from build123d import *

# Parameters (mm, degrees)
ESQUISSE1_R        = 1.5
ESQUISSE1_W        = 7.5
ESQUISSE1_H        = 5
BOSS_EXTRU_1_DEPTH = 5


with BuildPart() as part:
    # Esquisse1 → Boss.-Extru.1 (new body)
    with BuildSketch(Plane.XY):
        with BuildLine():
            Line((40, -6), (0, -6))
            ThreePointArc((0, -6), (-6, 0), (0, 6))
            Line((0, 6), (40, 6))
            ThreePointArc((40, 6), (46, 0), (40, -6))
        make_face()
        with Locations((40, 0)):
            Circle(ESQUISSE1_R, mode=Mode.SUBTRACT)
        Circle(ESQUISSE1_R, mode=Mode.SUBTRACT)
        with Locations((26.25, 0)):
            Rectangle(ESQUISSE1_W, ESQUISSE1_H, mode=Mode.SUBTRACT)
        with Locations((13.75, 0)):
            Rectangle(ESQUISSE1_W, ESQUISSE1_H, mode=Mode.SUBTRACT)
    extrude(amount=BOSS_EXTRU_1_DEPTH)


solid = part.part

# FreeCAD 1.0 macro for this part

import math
import FreeCAD as App
import Part
import Sketcher

V = App.Vector

doc = App.newDocument("Part")
params = doc.addObject("Spreadsheet::Sheet", "Params")
for row, (alias, value) in enumerate([
    ("sketch1_diameter", "3 mm"),
    ("sketch1_radius", "6 mm"),
    ("sketch1_width", "40 mm"),
    ("sketch1_height", "5 mm"),
    ("sketch1_width2", "7.5 mm"),
    ("pad1_length", "5 mm"),
], start=1):
    params.set(f"A{row}", alias)
    params.set(f"B{row}", "=" + value)
    params.setAlias(f"B{row}", alias)

body = doc.addObject("PartDesign::Body", "Body")

# Sketch on XY plane
sketch1 = body.newObject("Sketcher::SketchObject", "Sketch")
sketch1.AttachmentSupport = (doc.getObject("XY_Plane"), [""])
sketch1.MapMode = "FlatFace"
sketch1.addGeometry(Part.LineSegment(V(0, -6, 0), V(40, -6, 0)), False)
sketch1.addGeometry(Part.ArcOfCircle(Part.Circle(V(40, 0, 0), V(0, 0, 1), 6), math.radians(-90), math.radians(90)), False)
sketch1.addGeometry(Part.LineSegment(V(40, 6, 0), V(0, 6, 0)), False)
sketch1.addGeometry(Part.ArcOfCircle(Part.Circle(V(0, 0, 0), V(0, 0, 1), 6), math.radians(90), math.radians(270)), False)
sketch1.addGeometry(Part.Circle(V(40, 0, 0), V(0, 0, 1), 1.5), False)
sketch1.addGeometry(Part.LineSegment(V(22.5, -2.5, 0), V(22.5, 2.5, 0)), False)
sketch1.addGeometry(Part.LineSegment(V(22.5, 2.5, 0), V(30, 2.5, 0)), False)
sketch1.addGeometry(Part.LineSegment(V(30, 2.5, 0), V(30, -2.5, 0)), False)
sketch1.addGeometry(Part.LineSegment(V(30, -2.5, 0), V(22.5, -2.5, 0)), False)
sketch1.addGeometry(Part.LineSegment(V(10, -2.5, 0), V(10, 2.5, 0)), False)
sketch1.addGeometry(Part.LineSegment(V(10, 2.5, 0), V(17.5, 2.5, 0)), False)
sketch1.addGeometry(Part.LineSegment(V(17.5, 2.5, 0), V(17.5, -2.5, 0)), False)
sketch1.addGeometry(Part.LineSegment(V(17.5, -2.5, 0), V(10, -2.5, 0)), False)
sketch1.addGeometry(Part.Circle(V(0, 0, 0), V(0, 0, 1), 1.5), False)
sketch1.addConstraint(Sketcher.Constraint("Tangent", 0, 2, 1, 1))
sketch1.addConstraint(Sketcher.Constraint("Tangent", 1, 2, 2, 1))
sketch1.addConstraint(Sketcher.Constraint("Tangent", 2, 2, 3, 1))
sketch1.addConstraint(Sketcher.Constraint("Tangent", 3, 2, 0, 1))
sketch1.addConstraint(Sketcher.Constraint("Coincident", 5, 2, 6, 1))
sketch1.addConstraint(Sketcher.Constraint("Coincident", 6, 2, 7, 1))
sketch1.addConstraint(Sketcher.Constraint("Coincident", 7, 2, 8, 1))
sketch1.addConstraint(Sketcher.Constraint("Coincident", 8, 2, 5, 1))
sketch1.addConstraint(Sketcher.Constraint("Coincident", 9, 2, 10, 1))
sketch1.addConstraint(Sketcher.Constraint("Coincident", 10, 2, 11, 1))
sketch1.addConstraint(Sketcher.Constraint("Coincident", 11, 2, 12, 1))
sketch1.addConstraint(Sketcher.Constraint("Coincident", 12, 2, 9, 1))
sketch1.addConstraint(Sketcher.Constraint("Horizontal", 0))
sketch1.addConstraint(Sketcher.Constraint("Horizontal", 2))
sketch1.addConstraint(Sketcher.Constraint("Vertical", 5))
sketch1.addConstraint(Sketcher.Constraint("Horizontal", 6))
sketch1.addConstraint(Sketcher.Constraint("Vertical", 7))
sketch1.addConstraint(Sketcher.Constraint("Horizontal", 8))
sketch1.addConstraint(Sketcher.Constraint("Vertical", 9))
sketch1.addConstraint(Sketcher.Constraint("Horizontal", 10))
sketch1.addConstraint(Sketcher.Constraint("Vertical", 11))
sketch1.addConstraint(Sketcher.Constraint("Horizontal", 12))
sketch1.addConstraint(Sketcher.Constraint("Coincident", 3, 3, -1, 1))
sketch1.addConstraint(Sketcher.Constraint("Coincident", 13, 3, -1, 1))
sketch1.addConstraint(Sketcher.Constraint("Coincident", 4, 3, 1, 3))
sketch1.addConstraint(Sketcher.Constraint("Equal", 4, 13))
sketch1.addConstraint(Sketcher.Constraint("Horizontal", 6, 2, 9, 2))
sketch1.addConstraint(Sketcher.Constraint("Horizontal", 8, 2, 11, 2))
sketch1.addConstraint(Sketcher.Constraint("Equal", 8, 10))
sketch1.addConstraint(Sketcher.Constraint("Diameter", 4, 3.0))
sketch1.addConstraint(Sketcher.Constraint("Radius", 1, 6.0))
sketch1.addConstraint(Sketcher.Constraint("DistanceX", 0, 1, 0, 2, 40.0))
sketch1.addConstraint(Sketcher.Constraint("DistanceY", 5, 1, 5, 2, 5.0))
sketch1.addConstraint(Sketcher.Constraint("DistanceX", 6, 1, 6, 2, 7.5))
sketch1.addConstraint(Sketcher.Constraint("DistanceX", -1, 1, 6, 2, 30.0))
sketch1.addConstraint(Sketcher.Constraint("DistanceX", -1, 1, 9, 2, 10.0))
sketch1.addConstraint(Sketcher.Constraint("DistanceY", -1, 1, 5, 2, 2.5))
sketch1.setExpression("Constraints[29]", "Params.sketch1_diameter")
sketch1.setExpression("Constraints[30]", "Params.sketch1_radius")
sketch1.setExpression("Constraints[31]", "Params.sketch1_width")
sketch1.setExpression("Constraints[32]", "Params.sketch1_height")
sketch1.setExpression("Constraints[33]", "Params.sketch1_width2")
pad1 = body.newObject("PartDesign::Pad", "Pad")
pad1.Profile = sketch1
pad1.setExpression("Length", "Params.pad1_length")

doc.recompute()
